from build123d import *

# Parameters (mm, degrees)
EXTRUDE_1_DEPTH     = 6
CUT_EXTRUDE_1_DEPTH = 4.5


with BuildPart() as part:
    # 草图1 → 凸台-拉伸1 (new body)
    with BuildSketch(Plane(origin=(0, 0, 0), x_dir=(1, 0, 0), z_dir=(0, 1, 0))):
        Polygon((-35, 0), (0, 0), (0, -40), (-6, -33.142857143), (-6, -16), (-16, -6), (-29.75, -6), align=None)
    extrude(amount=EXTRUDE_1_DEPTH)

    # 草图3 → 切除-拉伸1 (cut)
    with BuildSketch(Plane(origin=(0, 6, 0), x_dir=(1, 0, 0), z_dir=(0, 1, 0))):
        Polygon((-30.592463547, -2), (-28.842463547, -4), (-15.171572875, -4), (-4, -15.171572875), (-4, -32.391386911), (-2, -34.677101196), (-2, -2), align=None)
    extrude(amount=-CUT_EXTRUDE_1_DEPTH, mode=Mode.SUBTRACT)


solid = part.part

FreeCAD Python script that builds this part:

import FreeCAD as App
import Part
import Sketcher
Q = App.Units.Quantity

doc = App.newDocument("Part")
body = doc.addObject("PartDesign::Body", "Body")

# Sketch on XZ plane
sketch1 = doc.addObject("Sketcher::SketchObject", "Sketch")
body.addObject(sketch1)
sketch1.AttachmentSupport = (doc.XZ_Plane, [""])
sketch1.MapMode = "FlatFace"
sketch1.addGeometry([
    Part.LineSegment(App.Vector(0, 0, 0), App.Vector(-35, 0, 0)),  # 0
    Part.LineSegment(App.Vector(-35, 0, 0), App.Vector(-30, 6, 0)),  # 1
    Part.LineSegment(App.Vector(-30, 6, 0), App.Vector(-16, 6, 0)),  # 2
    Part.LineSegment(App.Vector(-16, 6, 0), App.Vector(-6, 16, 0)),  # 3
    Part.LineSegment(App.Vector(-6, 16, 0), App.Vector(-6, 33, 0)),  # 4
    Part.LineSegment(App.Vector(-6, 33, 0), App.Vector(0, 40, 0)),  # 5
    Part.LineSegment(App.Vector(0, 40, 0), App.Vector(0, 0, 0)),  # 6
], False)
sketch1.addConstraint([
    Sketcher.Constraint("Coincident", 0, 2, 1, 1),
    Sketcher.Constraint("Coincident", 1, 2, 2, 1),
    Sketcher.Constraint("Coincident", 2, 2, 3, 1),
    Sketcher.Constraint("Coincident", 3, 2, 4, 1),
    Sketcher.Constraint("Coincident", 4, 2, 5, 1),
    Sketcher.Constraint("Coincident", 5, 2, 6, 1),
    Sketcher.Constraint("Coincident", 6, 2, 0, 1),
    Sketcher.Constraint("Horizontal", 0),
    Sketcher.Constraint("Horizontal", 2),
    Sketcher.Constraint("Vertical", 4),
    Sketcher.Constraint("Vertical", 6),
    Sketcher.Constraint("Coincident", 6, 2, -1, 1),
    Sketcher.Constraint("Parallel", 1, 5),
    Sketcher.Constraint("DistanceX", 0, 2, 0, 1, 35.0),
    Sketcher.Constraint("DistanceY", 6, 2, 6, 1, 40.0),
    Sketcher.Constraint("Angle", 3, Q("45 deg")),
    Sketcher.Constraint("DistanceY", -1, 1, 1, 2, 6.0),
    Sketcher.Constraint("DistanceX", 2, 2, -1, 1, 16.0),
    Sketcher.Constraint("DistanceX", 3, 2, -1, 1, 6.0),
    Sketcher.Constraint("DistanceX", 2, 1, 2, 2, 13.75),
])
pad1 = doc.addObject("PartDesign::Pad", "Pad")
body.addObject(pad1)
pad1.Profile = sketch1
pad1.Length = 6
pad1.Reversed = True

# Sketch on XZ plane
sketch2 = doc.addObject("Sketcher::SketchObject", "Sketch001")
body.addObject(sketch2)
sketch2.AttachmentSupport = (doc.XZ_Plane, [""])
sketch2.MapMode = "FlatFace"
sketch2.AttachmentOffset = App.Placement(App.Vector(0, 0, -6), App.Rotation())
sketch2.addGeometry([
    Part.LineSegment(App.Vector(-30.6, 2, 0), App.Vector(-28.8, 4, 0)),  # 0
    Part.LineSegment(App.Vector(-28.8, 4, 0), App.Vector(-15.2, 4, 0)),  # 1
    Part.LineSegment(App.Vector(-15.2, 4, 0), App.Vector(-4, 15.2, 0)),  # 2
    Part.LineSegment(App.Vector(-4, 15.2, 0), App.Vector(-4, 32.4, 0)),  # 3
    Part.LineSegment(App.Vector(-4, 32.4, 0), App.Vector(-2, 34.7, 0)),  # 4
    Part.LineSegment(App.Vector(-2, 34.7, 0), App.Vector(-2, 2, 0)),  # 5
    Part.LineSegment(App.Vector(-2, 2, 0), App.Vector(-30.6, 2, 0)),  # 6
], False)
sketch2.addConstraint([
    Sketcher.Constraint("Coincident", 0, 2, 1, 1),
    Sketcher.Constraint("Coincident", 1, 2, 2, 1),
    Sketcher.Constraint("Coincident", 2, 2, 3, 1),
    Sketcher.Constraint("Coincident", 3, 2, 4, 1),
    Sketcher.Constraint("Coincident", 4, 2, 5, 1),
    Sketcher.Constraint("Coincident", 5, 2, 6, 1),
    Sketcher.Constraint("Coincident", 6, 2, 0, 1),
    Sketcher.Constraint("Horizontal", 1),
    Sketcher.Constraint("Vertical", 3),
    Sketcher.Constraint("Vertical", 5),
    Sketcher.Constraint("Horizontal", 6),
    Sketcher.Constraint("Parallel", 0, 4),
    Sketcher.Constraint("Angle", 2, Q("45 deg")),
    Sketcher.Constraint("DistanceY", -1, 1, 0, 2, 4.0),
    Sketcher.Constraint("DistanceX", 2, 2, -1, 1, 4.0),
    Sketcher.Constraint("DistanceX", 4, 2, -1, 1, 2.0),
    Sketcher.Constraint("DistanceY", -1, 1, 5, 2, 2.0),
    Sketcher.Constraint("DistanceX", 6, 2, 0, 2, 1.75),
    Sketcher.Constraint("DistanceY", 5, 2, 5, 1, 32.677101),
    Sketcher.Constraint("DistanceX", 1, 1, 1, 2, 13.670891),
    Sketcher.Constraint("Distance", 2, 15.79899),
])
pocket1 = doc.addObject("PartDesign::Pocket", "Pocket")
body.addObject(pocket1)
pocket1.Profile = sketch2
pocket1.Length = 4.5
pocket1.Reversed = True

doc.recompute()
